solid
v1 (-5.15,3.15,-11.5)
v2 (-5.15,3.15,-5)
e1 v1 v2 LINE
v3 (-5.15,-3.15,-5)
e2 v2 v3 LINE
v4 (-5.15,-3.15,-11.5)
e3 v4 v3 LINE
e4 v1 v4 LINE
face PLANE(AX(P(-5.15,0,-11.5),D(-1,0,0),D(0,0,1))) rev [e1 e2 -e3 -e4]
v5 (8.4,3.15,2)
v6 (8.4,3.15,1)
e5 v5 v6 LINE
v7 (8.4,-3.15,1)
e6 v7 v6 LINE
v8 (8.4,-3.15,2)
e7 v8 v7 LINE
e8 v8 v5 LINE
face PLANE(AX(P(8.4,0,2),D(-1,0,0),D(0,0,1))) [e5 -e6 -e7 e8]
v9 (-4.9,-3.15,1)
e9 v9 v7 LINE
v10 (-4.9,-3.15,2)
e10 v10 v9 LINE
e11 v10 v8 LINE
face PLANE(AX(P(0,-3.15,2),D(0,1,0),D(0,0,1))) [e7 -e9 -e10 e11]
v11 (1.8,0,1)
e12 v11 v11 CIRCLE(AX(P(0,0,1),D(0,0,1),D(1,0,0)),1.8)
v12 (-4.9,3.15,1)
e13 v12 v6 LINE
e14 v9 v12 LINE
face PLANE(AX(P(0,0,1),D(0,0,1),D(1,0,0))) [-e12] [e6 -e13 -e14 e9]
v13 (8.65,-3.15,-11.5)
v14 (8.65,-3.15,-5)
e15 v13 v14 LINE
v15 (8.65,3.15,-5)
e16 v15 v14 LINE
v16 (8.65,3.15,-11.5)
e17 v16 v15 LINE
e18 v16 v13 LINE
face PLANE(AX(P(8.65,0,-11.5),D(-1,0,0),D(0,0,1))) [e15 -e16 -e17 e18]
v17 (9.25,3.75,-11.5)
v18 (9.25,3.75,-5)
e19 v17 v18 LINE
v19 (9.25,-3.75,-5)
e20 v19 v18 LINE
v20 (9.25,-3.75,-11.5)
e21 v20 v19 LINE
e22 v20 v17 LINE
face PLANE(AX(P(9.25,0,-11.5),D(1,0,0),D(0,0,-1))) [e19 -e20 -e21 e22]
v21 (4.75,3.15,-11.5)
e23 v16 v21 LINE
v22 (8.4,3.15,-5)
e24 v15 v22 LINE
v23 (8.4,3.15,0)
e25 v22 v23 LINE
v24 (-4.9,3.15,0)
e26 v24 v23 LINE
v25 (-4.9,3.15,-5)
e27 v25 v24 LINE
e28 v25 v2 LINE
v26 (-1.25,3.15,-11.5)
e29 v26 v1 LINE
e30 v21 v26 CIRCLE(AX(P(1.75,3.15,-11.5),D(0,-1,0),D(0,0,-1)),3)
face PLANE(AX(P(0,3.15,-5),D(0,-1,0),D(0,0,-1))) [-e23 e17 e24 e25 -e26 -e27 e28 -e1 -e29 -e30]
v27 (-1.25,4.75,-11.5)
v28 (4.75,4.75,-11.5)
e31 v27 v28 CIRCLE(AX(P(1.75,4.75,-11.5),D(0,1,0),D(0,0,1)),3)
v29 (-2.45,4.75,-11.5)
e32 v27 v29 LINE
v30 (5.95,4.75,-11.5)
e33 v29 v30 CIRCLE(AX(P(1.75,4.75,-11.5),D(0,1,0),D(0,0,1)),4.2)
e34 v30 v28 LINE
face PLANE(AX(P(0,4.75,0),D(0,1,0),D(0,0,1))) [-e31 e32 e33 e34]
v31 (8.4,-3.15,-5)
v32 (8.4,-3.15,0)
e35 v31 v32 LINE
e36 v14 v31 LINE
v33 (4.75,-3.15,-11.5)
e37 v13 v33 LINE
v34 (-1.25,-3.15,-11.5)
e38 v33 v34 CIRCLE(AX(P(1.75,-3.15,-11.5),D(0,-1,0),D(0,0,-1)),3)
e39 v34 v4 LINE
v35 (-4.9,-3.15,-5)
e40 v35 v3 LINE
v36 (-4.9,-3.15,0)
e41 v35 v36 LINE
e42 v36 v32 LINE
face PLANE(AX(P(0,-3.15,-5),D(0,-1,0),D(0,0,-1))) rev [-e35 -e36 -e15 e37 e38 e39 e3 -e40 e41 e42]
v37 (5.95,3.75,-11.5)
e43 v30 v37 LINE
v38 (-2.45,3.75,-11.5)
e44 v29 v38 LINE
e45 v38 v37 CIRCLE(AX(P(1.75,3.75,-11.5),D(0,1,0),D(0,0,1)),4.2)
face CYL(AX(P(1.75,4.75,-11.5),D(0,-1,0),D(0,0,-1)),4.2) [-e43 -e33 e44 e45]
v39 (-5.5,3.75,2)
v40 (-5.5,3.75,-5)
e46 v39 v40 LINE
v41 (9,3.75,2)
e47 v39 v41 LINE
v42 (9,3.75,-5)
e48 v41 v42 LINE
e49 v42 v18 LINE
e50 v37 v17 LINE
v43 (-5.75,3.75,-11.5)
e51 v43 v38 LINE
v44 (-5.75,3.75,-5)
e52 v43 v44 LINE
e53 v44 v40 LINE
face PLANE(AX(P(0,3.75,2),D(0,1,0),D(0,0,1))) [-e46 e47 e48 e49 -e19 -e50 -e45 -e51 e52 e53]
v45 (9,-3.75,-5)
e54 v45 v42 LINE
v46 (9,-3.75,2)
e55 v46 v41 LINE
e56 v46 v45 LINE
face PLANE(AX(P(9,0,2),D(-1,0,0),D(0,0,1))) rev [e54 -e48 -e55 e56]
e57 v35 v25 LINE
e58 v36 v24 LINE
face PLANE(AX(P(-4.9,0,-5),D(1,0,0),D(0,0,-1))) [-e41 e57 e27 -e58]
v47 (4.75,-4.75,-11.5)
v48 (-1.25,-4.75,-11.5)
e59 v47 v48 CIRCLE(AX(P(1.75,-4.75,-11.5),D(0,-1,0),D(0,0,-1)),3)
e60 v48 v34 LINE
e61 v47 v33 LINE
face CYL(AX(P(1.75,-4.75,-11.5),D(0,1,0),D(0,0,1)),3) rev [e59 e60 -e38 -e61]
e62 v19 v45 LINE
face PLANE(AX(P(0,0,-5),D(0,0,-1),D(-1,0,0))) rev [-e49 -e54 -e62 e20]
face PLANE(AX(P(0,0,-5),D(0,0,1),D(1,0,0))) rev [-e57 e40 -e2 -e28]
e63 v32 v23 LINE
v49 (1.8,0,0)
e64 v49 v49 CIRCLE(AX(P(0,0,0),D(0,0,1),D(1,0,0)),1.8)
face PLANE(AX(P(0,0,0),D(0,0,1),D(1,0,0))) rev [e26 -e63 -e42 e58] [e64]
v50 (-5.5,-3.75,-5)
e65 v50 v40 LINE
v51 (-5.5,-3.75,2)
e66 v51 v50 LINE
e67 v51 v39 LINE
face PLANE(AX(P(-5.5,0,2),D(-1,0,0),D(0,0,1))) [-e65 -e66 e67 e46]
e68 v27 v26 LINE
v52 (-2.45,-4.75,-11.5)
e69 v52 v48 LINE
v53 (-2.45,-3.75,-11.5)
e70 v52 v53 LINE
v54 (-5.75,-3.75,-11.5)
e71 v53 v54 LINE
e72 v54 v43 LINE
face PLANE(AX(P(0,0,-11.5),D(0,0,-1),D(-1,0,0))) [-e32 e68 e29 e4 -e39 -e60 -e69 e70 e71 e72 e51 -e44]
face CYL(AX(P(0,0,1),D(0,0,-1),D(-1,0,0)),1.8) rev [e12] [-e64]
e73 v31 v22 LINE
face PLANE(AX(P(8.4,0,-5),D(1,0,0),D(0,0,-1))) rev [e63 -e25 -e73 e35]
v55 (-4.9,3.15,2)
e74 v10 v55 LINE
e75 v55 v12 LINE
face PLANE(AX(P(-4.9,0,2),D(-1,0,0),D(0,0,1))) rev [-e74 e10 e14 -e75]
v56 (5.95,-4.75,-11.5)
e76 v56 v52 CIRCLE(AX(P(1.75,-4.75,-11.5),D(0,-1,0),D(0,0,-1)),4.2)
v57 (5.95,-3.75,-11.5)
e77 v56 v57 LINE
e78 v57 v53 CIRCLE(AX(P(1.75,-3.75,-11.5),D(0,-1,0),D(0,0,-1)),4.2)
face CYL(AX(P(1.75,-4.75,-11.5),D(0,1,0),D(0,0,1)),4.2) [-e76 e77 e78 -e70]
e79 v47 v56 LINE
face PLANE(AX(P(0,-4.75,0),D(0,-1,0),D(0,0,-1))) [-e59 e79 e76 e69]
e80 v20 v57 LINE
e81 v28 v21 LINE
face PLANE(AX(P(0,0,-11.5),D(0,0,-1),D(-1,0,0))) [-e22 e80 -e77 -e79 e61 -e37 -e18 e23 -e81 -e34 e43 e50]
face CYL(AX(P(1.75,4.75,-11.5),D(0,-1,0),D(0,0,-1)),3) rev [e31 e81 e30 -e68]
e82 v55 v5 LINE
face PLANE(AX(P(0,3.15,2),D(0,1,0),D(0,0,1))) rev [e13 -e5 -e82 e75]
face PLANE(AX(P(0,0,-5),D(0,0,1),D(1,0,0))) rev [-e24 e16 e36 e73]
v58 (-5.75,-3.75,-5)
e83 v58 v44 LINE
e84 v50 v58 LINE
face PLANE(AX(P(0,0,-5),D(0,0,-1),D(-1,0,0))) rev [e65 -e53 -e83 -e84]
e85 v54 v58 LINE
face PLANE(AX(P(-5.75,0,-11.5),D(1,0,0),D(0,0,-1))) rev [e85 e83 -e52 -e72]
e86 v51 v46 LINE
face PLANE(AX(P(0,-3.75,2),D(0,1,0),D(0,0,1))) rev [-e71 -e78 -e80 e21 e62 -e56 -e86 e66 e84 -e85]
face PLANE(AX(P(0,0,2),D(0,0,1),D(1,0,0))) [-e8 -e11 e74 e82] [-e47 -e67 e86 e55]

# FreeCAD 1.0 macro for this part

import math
import FreeCAD as App
import Part
import Sketcher
from FreeCAD import Vector

doc = App.newDocument("Part")
params = doc.addObject("Spreadsheet::Sheet", "Params")
for row, (alias, value) in enumerate([
    ("sketch1_diameter", "3.6 mm"),
    ("sketch1_width", "13.3 mm"),
    ("sketch1_height", "6.3 mm"),
    ("pad1_length", "1 mm"),
    ("sketch2_width", "14.5 mm"),
    ("sketch2_width2", "13.3 mm"),
    ("sketch2_height", "7.5 mm"),
    ("sketch2_height2", "6.3 mm"),
    ("pad2_length", "2 mm"),
    ("sketch3_width", "14.5 mm"),
    ("sketch3_width2", "13.3 mm"),
    ("sketch3_height", "7.5 mm"),
    ("sketch3_height2", "6.3 mm"),
    ("pad3_length", "5 mm"),
    ("sketch4_width", "15 mm"),
    ("sketch4_width2", "13.8 mm"),
    ("sketch4_height", "7.5 mm"),
    ("sketch4_height2", "6.3 mm"),
    ("pad4_length", "6.5 mm"),
    ("sketch5_radius", "3 mm"),
    ("sketch5_radius2", "4.2 mm"),
    ("pad5_length", "1 mm"),
    ("sketch6_radius", "3 mm"),
    ("sketch6_radius2", "4.2 mm"),
    ("pad6_length", "1 mm"),
    ("sketch7_radius", "3 mm"),
], start=1):
    params.set(f"A{row}", alias)
    params.set(f"B{row}", "=" + value)
    params.setAlias(f"B{row}", alias)

body = doc.addObject("PartDesign::Body", "Body")

# Sketch on XY plane
sketch1 = body.newObject("Sketcher::SketchObject", "Sketch")
sketch1.AttachmentSupport = (doc.getObject("XY_Plane"), [""])
sketch1.MapMode = "FlatFace"
sketch1.addGeometry([
    Part.LineSegment(Vector(-4.9, 3.15, 0), Vector(-4.9, -3.15, 0)),  # 0
    Part.LineSegment(Vector(-4.9, -3.15, 0), Vector(8.4, -3.15, 0)),  # 1
    Part.LineSegment(Vector(8.4, -3.15, 0), Vector(8.4, 3.15, 0)),  # 2
    Part.LineSegment(Vector(8.4, 3.15, 0), Vector(-4.9, 3.15, 0)),  # 3
    Part.Circle(Vector(0, 0, 0), Vector(0, 0, 1), 1.8),  # 4
], False)
sketch1.addConstraint([
    Sketcher.Constraint("Coincident", 0, 2, 1, 1),
    Sketcher.Constraint("Coincident", 1, 2, 2, 1),
    Sketcher.Constraint("Coincident", 2, 2, 3, 1),
    Sketcher.Constraint("Coincident", 3, 2, 0, 1),
    Sketcher.Constraint("Vertical", 0),
    Sketcher.Constraint("Horizontal", 1),
    Sketcher.Constraint("Vertical", 2),
    Sketcher.Constraint("Horizontal", 3),
    Sketcher.Constraint("Coincident", 4, 3, -1, 1),
    Sketcher.Constraint("Diameter", 4, 3.6),
    Sketcher.Constraint("DistanceX", 1, 1, 1, 2, 13.3),
    Sketcher.Constraint("DistanceY", 0, 2, 0, 1, 6.3),
    Sketcher.Constraint("DistanceX", 0, 2, -1, 1, 4.9),
    Sketcher.Constraint("DistanceY", 0, 2, -1, 1, 3.15),
])
sketch1.setExpression("Constraints[9]", "Params.sketch1_diameter")
sketch1.setExpression("Constraints[10]", "Params.sketch1_width")
sketch1.setExpression("Constraints[11]", "Params.sketch1_height")
pad1 = body.newObject("PartDesign::Pad", "Pad")
pad1.Profile = sketch1
pad1.setExpression("Length", "Params.pad1_length")

# Sketch on XY plane
sketch2 = body.newObject("Sketcher::SketchObject", "Sketch001")
sketch2.AttachmentSupport = (doc.getObject("XY_Plane"), [""])
sketch2.MapMode = "FlatFace"
sketch2.addGeometry([
    Part.LineSegment(Vector(-5.5, 3.75, 0), Vector(-5.5, -3.75, 0)),  # 0
    Part.LineSegment(Vector(-5.5, -3.75, 0), Vector(9, -3.75, 0)),  # 1
    Part.LineSegment(Vector(9, -3.75, 0), Vector(9, 3.75, 0)),  # 2
    Part.LineSegment(Vector(9, 3.75, 0), Vector(-5.5, 3.75, 0)),  # 3
    Part.LineSegment(Vector(8.4, -3.15, 0), Vector(-4.9, -3.15, 0)),  # 4
    Part.LineSegment(Vector(-4.9, -3.15, 0), Vector(-4.9, 3.15, 0)),  # 5
    Part.LineSegment(Vector(-4.9, 3.15, 0), Vector(8.4, 3.15, 0)),  # 6
    Part.LineSegment(Vector(8.4, 3.15, 0), Vector(8.4, -3.15, 0)),  # 7
], False)
sketch2.addConstraint([
    Sketcher.Constraint("Coincident", 0, 2, 1, 1),
    Sketcher.Constraint("Coincident", 1, 2, 2, 1),
    Sketcher.Constraint("Coincident", 2, 2, 3, 1),
    Sketcher.Constraint("Coincident", 3, 2, 0, 1),
    Sketcher.Constraint("Coincident", 4, 2, 5, 1),
    Sketcher.Constraint("Coincident", 5, 2, 6, 1),
    Sketcher.Constraint("Coincident", 6, 2, 7, 1),
    Sketcher.Constraint("Coincident", 7, 2, 4, 1),
    Sketcher.Constraint("Vertical", 0),
    Sketcher.Constraint("Horizontal", 1),
    Sketcher.Constraint("Vertical", 2),
    Sketcher.Constraint("Horizontal", 3),
    Sketcher.Constraint("Horizontal", 4),
    Sketcher.Constraint("Vertical", 5),
    Sketcher.Constraint("Horizontal", 6),
    Sketcher.Constraint("Vertical", 7),
    Sketcher.Constraint("DistanceX", 1, 1, 1, 2, 14.5),
    Sketcher.Constraint("DistanceX", 4, 2, 4, 1, 13.3),
    Sketcher.Constraint("DistanceY", 0, 2, 0, 1, 7.5),
    Sketcher.Constraint("DistanceY", 5, 1, 5, 2, 6.3),
    Sketcher.Constraint("DistanceX", -1, 1, 1, 2, 9.0),
    Sketcher.Constraint("DistanceX", 4, 2, -1, 1, 4.9),
    Sketcher.Constraint("DistanceY", 0, 2, 4, 2, 0.6),
    Sketcher.Constraint("DistanceY", 0, 2, -1, 1, 3.75),
])
sketch2.setExpression("Constraints[16]", "Params.sketch2_width")
sketch2.setExpression("Constraints[17]", "Params.sketch2_width2")
sketch2.setExpression("Constraints[18]", "Params.sketch2_height")
sketch2.setExpression("Constraints[19]", "Params.sketch2_height2")
pad2 = body.newObject("PartDesign::Pad", "Pad001")
pad2.Profile = sketch2
pad2.setExpression("Length", "Params.pad2_length")

# Sketch on XY plane
sketch3 = body.newObject("Sketcher::SketchObject", "Sketch002")
sketch3.AttachmentSupport = (doc.getObject("XY_Plane"), [""])
sketch3.MapMode = "FlatFace"
sketch3.addGeometry([
    Part.LineSegment(Vector(-5.5, 3.75, 0), Vector(-5.5, -3.75, 0)),  # 0
    Part.LineSegment(Vector(-5.5, -3.75, 0), Vector(9, -3.75, 0)),  # 1
    Part.LineSegment(Vector(9, -3.75, 0), Vector(9, 3.75, 0)),  # 2
    Part.LineSegment(Vector(9, 3.75, 0), Vector(-5.5, 3.75, 0)),  # 3
    Part.LineSegment(Vector(8.4, -3.15, 0), Vector(-4.9, -3.15, 0)),  # 4
    Part.LineSegment(Vector(-4.9, -3.15, 0), Vector(-4.9, 3.15, 0)),  # 5
    Part.LineSegment(Vector(-4.9, 3.15, 0), Vector(8.4, 3.15, 0)),  # 6
    Part.LineSegment(Vector(8.4, 3.15, 0), Vector(8.4, -3.15, 0)),  # 7
], False)
sketch3.addConstraint([
    Sketcher.Constraint("Coincident", 0, 2, 1, 1),
    Sketcher.Constraint("Coincident", 1, 2, 2, 1),
    Sketcher.Constraint("Coincident", 2, 2, 3, 1),
    Sketcher.Constraint("Coincident", 3, 2, 0, 1),
    Sketcher.Constraint("Coincident", 4, 2, 5, 1),
    Sketcher.Constraint("Coincident", 5, 2, 6, 1),
    Sketcher.Constraint("Coincident", 6, 2, 7, 1),
    Sketcher.Constraint("Coincident", 7, 2, 4, 1),
    Sketcher.Constraint("Vertical", 0),
    Sketcher.Constraint("Horizontal", 1),
    Sketcher.Constraint("Vertical", 2),
    Sketcher.Constraint("Horizontal", 3),
    Sketcher.Constraint("Horizontal", 4),
    Sketcher.Constraint("Vertical", 5),
    Sketcher.Constraint("Horizontal", 6),
    Sketcher.Constraint("Vertical", 7),
    Sketcher.Constraint("DistanceX", 1, 1, 1, 2, 14.5),
    Sketcher.Constraint("DistanceX", 4, 2, 4, 1, 13.3),
    Sketcher.Constraint("DistanceY", 0, 2, 0, 1, 7.5),
    Sketcher.Constraint("DistanceY", 5, 1, 5, 2, 6.3),
    Sketcher.Constraint("DistanceX", -1, 1, 1, 2, 9.0),
    Sketcher.Constraint("DistanceX", 4, 2, -1, 1, 4.9),
    Sketcher.Constraint("DistanceY", 0, 2, 4, 2, 0.6),
    Sketcher.Constraint("DistanceY", 0, 2, -1, 1, 3.75),
])
sketch3.setExpression("Constraints[16]", "Params.sketch3_width")
sketch3.setExpression("Constraints[17]", "Params.sketch3_width2")
sketch3.setExpression("Constraints[18]", "Params.sketch3_height")
sketch3.setExpression("Constraints[19]", "Params.sketch3_height2")
pad3 = body.newObject("PartDesign::Pad", "Pad002")
pad3.Profile = sketch3
pad3.setExpression("Length", "Params.pad3_length")
pad3.Reversed = True

# Sketch on XY plane
sketch4 = body.newObject("Sketcher::SketchObject", "Sketch003")
sketch4.AttachmentSupport = (doc.getObject("XY_Plane"), [""])
sketch4.MapMode = "FlatFace"
sketch4.AttachmentOffset = App.Placement(Vector(0, 0, -5), App.Rotation())
sketch4.addGeometry([
    Part.LineSegment(Vector(-5.75, -3.75, 0), Vector(-5.75, 3.75, 0)),  # 0
    Part.LineSegment(Vector(-5.75, 3.75, 0), Vector(9.25, 3.75, 0)),  # 1
    Part.LineSegment(Vector(9.25, 3.75, 0), Vector(9.25, -3.75, 0)),  # 2
    Part.LineSegment(Vector(9.25, -3.75, 0), Vector(-5.75, -3.75, 0)),  # 3
    Part.LineSegment(Vector(-5.15, -3.15, 0), Vector(8.65, -3.15, 0)),  # 4
    Part.LineSegment(Vector(8.65, -3.15, 0), Vector(8.65, 3.15, 0)),  # 5
    Part.LineSegment(Vector(8.65, 3.15, 0), Vector(-5.15, 3.15, 0)),  # 6
    Part.LineSegment(Vector(-5.15, 3.15, 0), Vector(-5.15, -3.15, 0)),  # 7
], False)
sketch4.addConstraint([
    Sketcher.Constraint("Coincident", 0, 2, 1, 1),
    Sketcher.Constraint("Coincident", 1, 2, 2, 1),
    Sketcher.Constraint("Coincident", 2, 2, 3, 1),
    Sketcher.Constraint("Coincident", 3, 2, 0, 1),
    Sketcher.Constraint("Coincident", 4, 2, 5, 1),
    Sketcher.Constraint("Coincident", 5, 2, 6, 1),
    Sketcher.Constraint("Coincident", 6, 2, 7, 1),
    Sketcher.Constraint("Coincident", 7, 2, 4, 1),
    Sketcher.Constraint("Vertical", 0),
    Sketcher.Constraint("Horizontal", 1),
    Sketcher.Constraint("Vertical", 2),
    Sketcher.Constraint("Horizontal", 3),
    Sketcher.Constraint("Horizontal", 4),
    Sketcher.Constraint("Vertical", 5),
    Sketcher.Constraint("Horizontal", 6),
    Sketcher.Constraint("Vertical", 7),
    Sketcher.Constraint("DistanceX", 1, 1, 1, 2, 15.0),
    Sketcher.Constraint("DistanceX", 4, 1, 4, 2, 13.8),
    Sketcher.Constraint("DistanceY", 0, 1, 0, 2, 7.5),
    Sketcher.Constraint("DistanceY", 5, 1, 5, 2, 6.3),
    Sketcher.Constraint("DistanceX", 4, 2, 2, 2, 0.6),
    Sketcher.Constraint("DistanceY", 2, 2, 4, 2, 0.6),
    Sketcher.Constraint("DistanceX", 0, 2, -1, 1, 5.75),
    Sketcher.Constraint("DistanceY", -1, 1, 0, 2, 3.75),
])
sketch4.setExpression("Constraints[16]", "Params.sketch4_width")
sketch4.setExpression("Constraints[17]", "Params.sketch4_width2")
sketch4.setExpression("Constraints[18]", "Params.sketch4_height")
sketch4.setExpression("Constraints[19]", "Params.sketch4_height2")
pad4 = body.newObject("PartDesign::Pad", "Pad003")
pad4.Profile = sketch4
pad4.setExpression("Length", "Params.pad4_length")
pad4.Reversed = True

# Sketch on XZ plane
sketch5 = body.newObject("Sketcher::SketchObject", "Sketch004")
sketch5.AttachmentSupport = (doc.getObject("XZ_Plane"), [""])
sketch5.MapMode = "FlatFace"
sketch5.AttachmentOffset = App.Placement(Vector(0, 0, -3.75), App.Rotation())
sketch5.addGeometry([
    Part.LineSegment(Vector(5.95, -11.5, 0), Vector(4.75, -11.5, 0)),
    Part.ArcOfCircle(Part.Circle(Vector(1.75, -11.5, 0), Vector(0, 0, 1), 3), math.radians(0), math.radians(180)),
    Part.LineSegment(Vector(-1.25, -11.5, 0), Vector(-2.45, -11.5, 0)),
    Part.ArcOfCircle(Part.Circle(Vector(1.75, -11.5, 0), Vector(0, 0, 1), 4.2), math.radians(0), math.radians(180)),
], False)
sketch5.addConstraint([
    Sketcher.Constraint("Coincident", 0, 2, 1, 1),
    Sketcher.Constraint("Coincident", 1, 2, 2, 1),
    Sketcher.Constraint("Coincident", 2, 2, 3, 2),
    Sketcher.Constraint("Coincident", 3, 1, 0, 1),
    Sketcher.Constraint("Horizontal", 0),
    Sketcher.Constraint("Horizontal", 2),
    Sketcher.Constraint("Coincident", 3, 3, 1, 3),
    Sketcher.Constraint("Horizontal", 3, 3, 0, 2),
    Sketcher.Constraint("Horizontal", 0, 2, 1, 2),
    Sketcher.Constraint("Radius", 1, 3.0),
    Sketcher.Constraint("Radius", 3, 4.2),
    Sketcher.Constraint("DistanceY", 1, 3, -1, 1, 11.5),
    Sketcher.Constraint("DistanceX", -1, 1, 1, 3, 1.75),
])
sketch5.setExpression("Constraints[9]", "Params.sketch5_radius")
sketch5.setExpression("Constraints[10]", "Params.sketch5_radius2")
pad5 = body.newObject("PartDesign::Pad", "Pad004")
pad5.Profile = sketch5
pad5.setExpression("Length", "Params.pad5_length")
pad5.Reversed = True

# Sketch on XZ plane
sketch6 = body.newObject("Sketcher::SketchObject", "Sketch005")
sketch6.AttachmentSupport = (doc.getObject("XZ_Plane"), [""])
sketch6.MapMode = "FlatFace"
sketch6.AttachmentOffset = App.Placement(Vector(0, 0, 4.75), App.Rotation())
sketch6.addGeometry([
    Part.LineSegment(Vector(4.75, -11.5, 0), Vector(5.95, -11.5, 0)),
    Part.ArcOfCircle(Part.Circle(Vector(1.75, -11.5, 0), Vector(0, 0, 1), 4.2), math.radians(0), math.radians(180)),
    Part.LineSegment(Vector(-2.45, -11.5, 0), Vector(-1.25, -11.5, 0)),
    Part.ArcOfCircle(Part.Circle(Vector(1.75, -11.5, 0), Vector(0, 0, 1), 3), math.radians(0), math.radians(180)),
], False)
sketch6.addConstraint([
    Sketcher.Constraint("Coincident", 0, 2, 1, 1),
    Sketcher.Constraint("Coincident", 1, 2, 2, 1),
    Sketcher.Constraint("Coincident", 2, 2, 3, 2),
    Sketcher.Constraint("Coincident", 3, 1, 0, 1),
    Sketcher.Constraint("Horizontal", 0),
    Sketcher.Constraint("Horizontal", 2),
    Sketcher.Constraint("Coincident", 3, 3, 1, 3),
    Sketcher.Constraint("Horizontal", 3, 3, 0, 2),
    Sketcher.Constraint("Horizontal", 0, 2, 1, 2),
    Sketcher.Constraint("Radius", 3, 3.0),
    Sketcher.Constraint("Radius", 1, 4.2),
    Sketcher.Constraint("DistanceY", 1, 3, -1, 1, 11.5),
    Sketcher.Constraint("DistanceX", -1, 1, 1, 3, 1.75),
])
sketch6.setExpression("Constraints[9]", "Params.sketch6_radius")
sketch6.setExpression("Constraints[10]", "Params.sketch6_radius2")
pad6 = body.newObject("PartDesign::Pad", "Pad005")
pad6.Profile = sketch6
pad6.setExpression("Length", "Params.pad6_length")
pad6.Reversed = True

# Sketch on XZ plane
sketch7 = body.newObject("Sketcher::SketchObject", "Sketch006")
sketch7.AttachmentSupport = (doc.getObject("XZ_Plane"), [""])
sketch7.MapMode = "FlatFace"
sketch7.AttachmentOffset = App.Placement(Vector(0, 0, 3.75), App.Rotation())
sketch7.addGeometry([
    Part.LineSegment(Vector(-1.25, -11.5, 0), Vector(4.75, -11.5, 0)),
    Part.ArcOfCircle(Part.Circle(Vector(1.75, -11.5, 0), Vector(0, 0, 1), 3), math.radians(0), math.radians(180)),
], False)
sketch7.addConstraint([
    Sketcher.Constraint("Coincident", 0, 1, 1, 2),
    Sketcher.Constraint("Coincident", 1, 1, 0, 2),
    Sketcher.Constraint("Horizontal", 0),
    Sketcher.Constraint("Horizontal", 1, 3, 0, 1),
    Sketcher.Constraint("Radius", 1, 3.0),
    Sketcher.Constraint("DistanceY", 1, 3, -1, 1, 11.5),
    Sketcher.Constraint("DistanceX", -1, 1, 1, 3, 1.75),
])
sketch7.setExpression("Constraints[4]", "Params.sketch7_radius")
pocket1 = body.newObject("PartDesign::Pocket", "Pocket")
pocket1.Profile = sketch7
pocket1.Type = "ThroughAll"

doc.recompute()
